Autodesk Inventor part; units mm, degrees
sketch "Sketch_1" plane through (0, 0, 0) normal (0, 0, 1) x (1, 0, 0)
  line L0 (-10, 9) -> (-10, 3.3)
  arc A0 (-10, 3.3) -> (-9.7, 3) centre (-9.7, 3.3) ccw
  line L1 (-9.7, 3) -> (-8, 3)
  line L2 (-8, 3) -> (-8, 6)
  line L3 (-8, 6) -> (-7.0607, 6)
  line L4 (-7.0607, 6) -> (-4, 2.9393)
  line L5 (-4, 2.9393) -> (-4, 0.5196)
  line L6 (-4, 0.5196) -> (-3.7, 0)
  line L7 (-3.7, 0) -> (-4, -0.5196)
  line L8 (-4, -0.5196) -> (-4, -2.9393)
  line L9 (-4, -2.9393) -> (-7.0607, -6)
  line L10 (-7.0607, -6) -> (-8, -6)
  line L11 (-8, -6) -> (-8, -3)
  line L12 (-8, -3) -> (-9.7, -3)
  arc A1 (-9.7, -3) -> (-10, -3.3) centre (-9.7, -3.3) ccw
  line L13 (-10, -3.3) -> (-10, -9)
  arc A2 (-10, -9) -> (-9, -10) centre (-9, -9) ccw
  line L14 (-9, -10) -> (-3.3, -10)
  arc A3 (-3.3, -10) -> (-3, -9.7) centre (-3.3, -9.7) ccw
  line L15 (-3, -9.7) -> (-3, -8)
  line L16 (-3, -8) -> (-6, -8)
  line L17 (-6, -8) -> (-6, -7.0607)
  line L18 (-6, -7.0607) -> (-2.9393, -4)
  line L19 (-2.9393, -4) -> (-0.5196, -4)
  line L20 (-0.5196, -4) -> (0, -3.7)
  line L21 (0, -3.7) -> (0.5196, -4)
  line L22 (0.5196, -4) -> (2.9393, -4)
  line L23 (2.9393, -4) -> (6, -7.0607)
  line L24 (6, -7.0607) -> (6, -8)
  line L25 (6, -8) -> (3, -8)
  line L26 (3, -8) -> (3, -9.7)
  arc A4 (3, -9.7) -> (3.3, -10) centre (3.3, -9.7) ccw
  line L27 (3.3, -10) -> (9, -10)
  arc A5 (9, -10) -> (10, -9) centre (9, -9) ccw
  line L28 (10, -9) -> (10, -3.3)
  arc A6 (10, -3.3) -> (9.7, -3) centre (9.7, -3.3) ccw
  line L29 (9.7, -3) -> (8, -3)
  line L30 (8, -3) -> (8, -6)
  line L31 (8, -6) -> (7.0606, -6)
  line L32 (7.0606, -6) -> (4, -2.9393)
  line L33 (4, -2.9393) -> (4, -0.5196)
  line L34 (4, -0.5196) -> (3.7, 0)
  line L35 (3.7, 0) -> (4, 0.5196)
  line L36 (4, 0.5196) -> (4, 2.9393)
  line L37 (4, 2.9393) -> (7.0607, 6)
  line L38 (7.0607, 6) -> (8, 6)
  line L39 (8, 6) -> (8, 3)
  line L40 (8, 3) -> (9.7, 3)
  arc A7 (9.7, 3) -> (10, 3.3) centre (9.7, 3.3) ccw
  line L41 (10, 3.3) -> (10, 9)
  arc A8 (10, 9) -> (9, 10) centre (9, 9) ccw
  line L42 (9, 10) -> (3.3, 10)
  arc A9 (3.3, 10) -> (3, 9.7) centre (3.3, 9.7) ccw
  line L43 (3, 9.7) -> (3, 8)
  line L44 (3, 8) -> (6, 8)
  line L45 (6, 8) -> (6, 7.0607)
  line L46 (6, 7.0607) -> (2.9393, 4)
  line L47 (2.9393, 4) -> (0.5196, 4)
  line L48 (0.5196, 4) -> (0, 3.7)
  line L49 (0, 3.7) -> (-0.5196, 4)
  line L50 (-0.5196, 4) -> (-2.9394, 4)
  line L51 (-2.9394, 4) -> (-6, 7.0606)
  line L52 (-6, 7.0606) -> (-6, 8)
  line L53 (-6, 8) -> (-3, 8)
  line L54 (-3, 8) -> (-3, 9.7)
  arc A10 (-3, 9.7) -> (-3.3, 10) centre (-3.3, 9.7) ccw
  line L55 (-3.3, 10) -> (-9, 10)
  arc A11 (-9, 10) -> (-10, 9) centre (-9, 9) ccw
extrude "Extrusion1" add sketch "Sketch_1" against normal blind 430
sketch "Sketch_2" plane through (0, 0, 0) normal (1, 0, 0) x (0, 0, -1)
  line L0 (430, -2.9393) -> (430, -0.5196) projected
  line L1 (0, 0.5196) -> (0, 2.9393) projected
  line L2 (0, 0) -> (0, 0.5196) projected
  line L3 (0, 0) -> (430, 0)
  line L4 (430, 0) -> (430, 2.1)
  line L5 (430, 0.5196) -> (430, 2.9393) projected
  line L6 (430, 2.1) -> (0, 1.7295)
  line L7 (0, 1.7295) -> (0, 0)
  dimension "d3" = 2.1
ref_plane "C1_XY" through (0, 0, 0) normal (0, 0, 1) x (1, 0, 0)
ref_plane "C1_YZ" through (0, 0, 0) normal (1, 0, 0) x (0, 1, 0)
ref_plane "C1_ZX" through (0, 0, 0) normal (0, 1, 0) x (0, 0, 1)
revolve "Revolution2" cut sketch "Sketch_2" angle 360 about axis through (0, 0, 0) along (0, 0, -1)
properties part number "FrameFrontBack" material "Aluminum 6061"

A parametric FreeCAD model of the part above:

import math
import FreeCAD as App
import Part
import Sketcher
from FreeCAD import Vector
Q = App.Units.Quantity


def add_polygon(sketch, points):
    """Adds a closed chain of lines whose ends are joined by coincident constraints."""
    first, n = sketch.GeometryCount, len(points)
    for a, b in zip(points, points[1:] + points[:1]):
        sketch.addGeometry(Part.LineSegment(App.Vector(*a, 0), App.Vector(*b, 0)), False)
    for i in range(n):
        sketch.addConstraint(Sketcher.Constraint("Coincident", first + i, 2, first + (i + 1) % n, 1))

doc = App.newDocument("Part")
body = doc.addObject("PartDesign::Body", "Body")

# Sketch on XY plane
sketch1 = body.newObject("Sketcher::SketchObject", "Sketch")
sketch1.AttachmentSupport = (doc.getObject("XY_Plane"), [""])
sketch1.MapMode = "FlatFace"
sketch1.addGeometry(Part.ArcOfCircle(Part.Circle(Vector(-9, 9, 0), Vector(0, 0, 1), 1), math.radians(90), math.radians(180)), False)
sketch1.addGeometry(Part.LineSegment(Vector(-10, 9, 0), Vector(-10, 3.3, 0)), False)
sketch1.addGeometry(Part.ArcOfCircle(Part.Circle(Vector(-9.7, 3.3, 0), Vector(0, 0, 1), 0.3), math.radians(180), math.radians(270)), False)
sketch1.addGeometry(Part.LineSegment(Vector(-9.7, 3, 0), Vector(-8, 3, 0)), False)
sketch1.addGeometry(Part.LineSegment(Vector(-8, 3, 0), Vector(-8, 6, 0)), False)
sketch1.addGeometry(Part.LineSegment(Vector(-8, 6, 0), Vector(-7.06, 6, 0)), False)
sketch1.addGeometry(Part.LineSegment(Vector(-7.06, 6, 0), Vector(-4, 2.94, 0)), False)
sketch1.addGeometry(Part.LineSegment(Vector(-4, 2.94, 0), Vector(-4, 0.52, 0)), False)
sketch1.addGeometry(Part.LineSegment(Vector(-4, 0.52, 0), Vector(-3.7, 0, 0)), False)
sketch1.addGeometry(Part.LineSegment(Vector(-3.7, 0, 0), Vector(-4, -0.52, 0)), False)
sketch1.addGeometry(Part.LineSegment(Vector(-4, -0.52, 0), Vector(-4, -2.94, 0)), False)
sketch1.addGeometry(Part.LineSegment(Vector(-4, -2.94, 0), Vector(-7.06, -6, 0)), False)
sketch1.addGeometry(Part.LineSegment(Vector(-7.06, -6, 0), Vector(-8, -6, 0)), False)
sketch1.addGeometry(Part.LineSegment(Vector(-8, -6, 0), Vector(-8, -3, 0)), False)
sketch1.addGeometry(Part.LineSegment(Vector(-8, -3, 0), Vector(-9.7, -3, 0)), False)
sketch1.addGeometry(Part.ArcOfCircle(Part.Circle(Vector(-9.7, -3.3, 0), Vector(0, 0, 1), 0.3), math.radians(90), math.radians(180)), False)
sketch1.addGeometry(Part.LineSegment(Vector(-10, -3.3, 0), Vector(-10, -9, 0)), False)
sketch1.addGeometry(Part.ArcOfCircle(Part.Circle(Vector(-9, -9, 0), Vector(0, 0, 1), 1), math.radians(180), math.radians(270)), False)
sketch1.addGeometry(Part.LineSegment(Vector(-9, -10, 0), Vector(-3.3, -10, 0)), False)
sketch1.addGeometry(Part.ArcOfCircle(Part.Circle(Vector(-3.3, -9.7, 0), Vector(0, 0, 1), 0.3), math.radians(-90), math.radians(0)), False)
sketch1.addGeometry(Part.LineSegment(Vector(-3, -9.7, 0), Vector(-3, -8, 0)), False)
sketch1.addGeometry(Part.LineSegment(Vector(-3, -8, 0), Vector(-6, -8, 0)), False)
sketch1.addGeometry(Part.LineSegment(Vector(-6, -8, 0), Vector(-6, -7.06, 0)), False)
sketch1.addGeometry(Part.LineSegment(Vector(-6, -7.06, 0), Vector(-2.94, -4, 0)), False)
sketch1.addGeometry(Part.LineSegment(Vector(-2.94, -4, 0), Vector(-0.52, -4, 0)), False)
sketch1.addGeometry(Part.LineSegment(Vector(-0.52, -4, 0), Vector(0, -3.7, 0)), False)
sketch1.addGeometry(Part.LineSegment(Vector(0, -3.7, 0), Vector(0.52, -4, 0)), False)
sketch1.addGeometry(Part.LineSegment(Vector(0.52, -4, 0), Vector(2.94, -4, 0)), False)
sketch1.addGeometry(Part.LineSegment(Vector(2.94, -4, 0), Vector(6, -7.06, 0)), False)
sketch1.addGeometry(Part.LineSegment(Vector(6, -7.06, 0), Vector(6, -8, 0)), False)
sketch1.addGeometry(Part.LineSegment(Vector(6, -8, 0), Vector(3, -8, 0)), False)
sketch1.addGeometry(Part.LineSegment(Vector(3, -8, 0), Vector(3, -9.7, 0)), False)
sketch1.addGeometry(Part.ArcOfCircle(Part.Circle(Vector(3.3, -9.7, 0), Vector(0, 0, 1), 0.3), math.radians(180), math.radians(270)), False)
sketch1.addGeometry(Part.LineSegment(Vector(3.3, -10, 0), Vector(9, -10, 0)), False)
sketch1.addGeometry(Part.ArcOfCircle(Part.Circle(Vector(9, -9, 0), Vector(0, 0, 1), 1), math.radians(-90), math.radians(0)), False)
sketch1.addGeometry(Part.LineSegment(Vector(10, -9, 0), Vector(10, -3.3, 0)), False)
sketch1.addGeometry(Part.ArcOfCircle(Part.Circle(Vector(9.7, -3.3, 0), Vector(0, 0, 1), 0.3), math.radians(0), math.radians(90)), False)
sketch1.addGeometry(Part.LineSegment(Vector(9.7, -3, 0), Vector(8, -3, 0)), False)
sketch1.addGeometry(Part.LineSegment(Vector(8, -3, 0), Vector(8, -6, 0)), False)
sketch1.addGeometry(Part.LineSegment(Vector(8, -6, 0), Vector(7.06, -6, 0)), False)
sketch1.addGeometry(Part.LineSegment(Vector(7.06, -6, 0), Vector(4, -2.94, 0)), False)
sketch1.addGeometry(Part.LineSegment(Vector(4, -2.94, 0), Vector(4, -0.52, 0)), False)
sketch1.addGeometry(Part.LineSegment(Vector(4, -0.52, 0), Vector(3.7, 0, 0)), False)
sketch1.addGeometry(Part.LineSegment(Vector(3.7, 0, 0), Vector(4, 0.52, 0)), False)
sketch1.addGeometry(Part.LineSegment(Vector(4, 0.52, 0), Vector(4, 2.94, 0)), False)
sketch1.addGeometry(Part.LineSegment(Vector(4, 2.94, 0), Vector(7.06, 6, 0)), False)
sketch1.addGeometry(Part.LineSegment(Vector(7.06, 6, 0), Vector(8, 6, 0)), False)
sketch1.addGeometry(Part.LineSegment(Vector(8, 6, 0), Vector(8, 3, 0)), False)
sketch1.addGeometry(Part.LineSegment(Vector(8, 3, 0), Vector(9.7, 3, 0)), False)
sketch1.addGeometry(Part.ArcOfCircle(Part.Circle(Vector(9.7, 3.3, 0), Vector(0, 0, 1), 0.3), math.radians(-90), math.radians(0)), False)
sketch1.addGeometry(Part.LineSegment(Vector(10, 3.3, 0), Vector(10, 9, 0)), False)
sketch1.addGeometry(Part.ArcOfCircle(Part.Circle(Vector(9, 9, 0), Vector(0, 0, 1), 1), math.radians(0), math.radians(90)), False)
sketch1.addGeometry(Part.LineSegment(Vector(9, 10, 0), Vector(3.3, 10, 0)), False)
sketch1.addGeometry(Part.ArcOfCircle(Part.Circle(Vector(3.3, 9.7, 0), Vector(0, 0, 1), 0.3), math.radians(90), math.radians(180)), False)
sketch1.addGeometry(Part.LineSegment(Vector(3, 9.7, 0), Vector(3, 8, 0)), False)
sketch1.addGeometry(Part.LineSegment(Vector(3, 8, 0), Vector(6, 8, 0)), False)
sketch1.addGeometry(Part.LineSegment(Vector(6, 8, 0), Vector(6, 7.06, 0)), False)
sketch1.addGeometry(Part.LineSegment(Vector(6, 7.06, 0), Vector(2.94, 4, 0)), False)
sketch1.addGeometry(Part.LineSegment(Vector(2.94, 4, 0), Vector(0.52, 4, 0)), False)
sketch1.addGeometry(Part.LineSegment(Vector(0.52, 4, 0), Vector(0, 3.7, 0)), False)
sketch1.addGeometry(Part.LineSegment(Vector(0, 3.7, 0), Vector(-0.52, 4, 0)), False)
sketch1.addGeometry(Part.LineSegment(Vector(-0.52, 4, 0), Vector(-2.94, 4, 0)), False)
sketch1.addGeometry(Part.LineSegment(Vector(-2.94, 4, 0), Vector(-6, 7.06, 0)), False)
sketch1.addGeometry(Part.LineSegment(Vector(-6, 7.06, 0), Vector(-6, 8, 0)), False)
sketch1.addGeometry(Part.LineSegment(Vector(-6, 8, 0), Vector(-3, 8, 0)), False)
sketch1.addGeometry(Part.LineSegment(Vector(-3, 8, 0), Vector(-3, 9.7, 0)), False)
sketch1.addGeometry(Part.ArcOfCircle(Part.Circle(Vector(-3.3, 9.7, 0), Vector(0, 0, 1), 0.3), math.radians(0), math.radians(90)), False)
sketch1.addGeometry(Part.LineSegment(Vector(-3.3, 10, 0), Vector(-9, 10, 0)), False)
sketch1.addConstraint(Sketcher.Constraint("Tangent", 0, 2, 1, 1))
sketch1.addConstraint(Sketcher.Constraint("Tangent", 1, 2, 2, 1))
sketch1.addConstraint(Sketcher.Constraint("Tangent", 2, 2, 3, 1))
sketch1.addConstraint(Sketcher.Constraint("Coincident", 3, 2, 4, 1))
sketch1.addConstraint(Sketcher.Constraint("Coincident", 4, 2, 5, 1))
sketch1.addConstraint(Sketcher.Constraint("Coincident", 5, 2, 6, 1))
sketch1.addConstraint(Sketcher.Constraint("Coincident", 6, 2, 7, 1))
sketch1.addConstraint(Sketcher.Constraint("Coincident", 7, 2, 8, 1))
sketch1.addConstraint(Sketcher.Constraint("Coincident", 8, 2, 9, 1))
sketch1.addConstraint(Sketcher.Constraint("Coincident", 9, 2, 10, 1))
sketch1.addConstraint(Sketcher.Constraint("Coincident", 10, 2, 11, 1))
sketch1.addConstraint(Sketcher.Constraint("Coincident", 11, 2, 12, 1))
sketch1.addConstraint(Sketcher.Constraint("Coincident", 12, 2, 13, 1))
sketch1.addConstraint(Sketcher.Constraint("Coincident", 13, 2, 14, 1))
sketch1.addConstraint(Sketcher.Constraint("Tangent", 14, 2, 15, 1))
sketch1.addConstraint(Sketcher.Constraint("Tangent", 15, 2, 16, 1))
sketch1.addConstraint(Sketcher.Constraint("Tangent", 16, 2, 17, 1))
sketch1.addConstraint(Sketcher.Constraint("Tangent", 17, 2, 18, 1))
sketch1.addConstraint(Sketcher.Constraint("Tangent", 18, 2, 19, 1))
sketch1.addConstraint(Sketcher.Constraint("Tangent", 19, 2, 20, 1))
sketch1.addConstraint(Sketcher.Constraint("Coincident", 20, 2, 21, 1))
sketch1.addConstraint(Sketcher.Constraint("Coincident", 21, 2, 22, 1))
sketch1.addConstraint(Sketcher.Constraint("Coincident", 22, 2, 23, 1))
sketch1.addConstraint(Sketcher.Constraint("Coincident", 23, 2, 24, 1))
sketch1.addConstraint(Sketcher.Constraint("Coincident", 24, 2, 25, 1))
sketch1.addConstraint(Sketcher.Constraint("Coincident", 25, 2, 26, 1))
sketch1.addConstraint(Sketcher.Constraint("Coincident", 26, 2, 27, 1))
sketch1.addConstraint(Sketcher.Constraint("Coincident", 27, 2, 28, 1))
sketch1.addConstraint(Sketcher.Constraint("Coincident", 28, 2, 29, 1))
sketch1.addConstraint(Sketcher.Constraint("Coincident", 29, 2, 30, 1))
sketch1.addConstraint(Sketcher.Constraint("Coincident", 30, 2, 31, 1))
sketch1.addConstraint(Sketcher.Constraint("Tangent", 31, 2, 32, 1))
sketch1.addConstraint(Sketcher.Constraint("Tangent", 32, 2, 33, 1))
sketch1.addConstraint(Sketcher.Constraint("Tangent", 33, 2, 34, 1))
sketch1.addConstraint(Sketcher.Constraint("Tangent", 34, 2, 35, 1))
sketch1.addConstraint(Sketcher.Constraint("Tangent", 35, 2, 36, 1))
sketch1.addConstraint(Sketcher.Constraint("Tangent", 36, 2, 37, 1))
sketch1.addConstraint(Sketcher.Constraint("Coincident", 37, 2, 38, 1))
sketch1.addConstraint(Sketcher.Constraint("Coincident", 38, 2, 39, 1))
sketch1.addConstraint(Sketcher.Constraint("Coincident", 39, 2, 40, 1))
sketch1.addConstraint(Sketcher.Constraint("Coincident", 40, 2, 41, 1))
sketch1.addConstraint(Sketcher.Constraint("Coincident", 41, 2, 42, 1))
sketch1.addConstraint(Sketcher.Constraint("Coincident", 42, 2, 43, 1))
sketch1.addConstraint(Sketcher.Constraint("Coincident", 43, 2, 44, 1))
sketch1.addConstraint(Sketcher.Constraint("Coincident", 44, 2, 45, 1))
sketch1.addConstraint(Sketcher.Constraint("Coincident", 45, 2, 46, 1))
sketch1.addConstraint(Sketcher.Constraint("Coincident", 46, 2, 47, 1))
sketch1.addConstraint(Sketcher.Constraint("Coincident", 47, 2, 48, 1))
sketch1.addConstraint(Sketcher.Constraint("Tangent", 48, 2, 49, 1))
sketch1.addConstraint(Sketcher.Constraint("Tangent", 49, 2, 50, 1))
sketch1.addConstraint(Sketcher.Constraint("Tangent", 50, 2, 51, 1))
sketch1.addConstraint(Sketcher.Constraint("Tangent", 51, 2, 52, 1))
sketch1.addConstraint(Sketcher.Constraint("Tangent", 52, 2, 53, 1))
sketch1.addConstraint(Sketcher.Constraint("Tangent", 53, 2, 54, 1))
sketch1.addConstraint(Sketcher.Constraint("Coincident", 54, 2, 55, 1))
sketch1.addConstraint(Sketcher.Constraint("Coincident", 55, 2, 56, 1))
sketch1.addConstraint(Sketcher.Constraint("Coincident", 56, 2, 57, 1))
sketch1.addConstraint(Sketcher.Constraint("Coincident", 57, 2, 58, 1))
sketch1.addConstraint(Sketcher.Constraint("Coincident", 58, 2, 59, 1))
sketch1.addConstraint(Sketcher.Constraint("Coincident", 59, 2, 60, 1))
sketch1.addConstraint(Sketcher.Constraint("Coincident", 60, 2, 61, 1))
sketch1.addConstraint(Sketcher.Constraint("Coincident", 61, 2, 62, 1))
sketch1.addConstraint(Sketcher.Constraint("Coincident", 62, 2, 63, 1))
sketch1.addConstraint(Sketcher.Constraint("Coincident", 63, 2, 64, 1))
sketch1.addConstraint(Sketcher.Constraint("Coincident", 64, 2, 65, 1))
sketch1.addConstraint(Sketcher.Constraint("Tangent", 65, 2, 66, 1))
sketch1.addConstraint(Sketcher.Constraint("Tangent", 66, 2, 67, 1))
sketch1.addConstraint(Sketcher.Constraint("Tangent", 67, 2, 0, 1))
sketch1.addConstraint(Sketcher.Constraint("Vertical", 1))
sketch1.addConstraint(Sketcher.Constraint("Horizontal", 3))
sketch1.addConstraint(Sketcher.Constraint("Vertical", 4))
sketch1.addConstraint(Sketcher.Constraint("Horizontal", 5))
sketch1.addConstraint(Sketcher.Constraint("Vertical", 7))
sketch1.addConstraint(Sketcher.Constraint("Vertical", 10))
sketch1.addConstraint(Sketcher.Constraint("Horizontal", 12))
sketch1.addConstraint(Sketcher.Constraint("Vertical", 13))
sketch1.addConstraint(Sketcher.Constraint("Horizontal", 14))
sketch1.addConstraint(Sketcher.Constraint("Vertical", 16))
sketch1.addConstraint(Sketcher.Constraint("Horizontal", 18))
sketch1.addConstraint(Sketcher.Constraint("Vertical", 20))
sketch1.addConstraint(Sketcher.Constraint("Horizontal", 21))
sketch1.addConstraint(Sketcher.Constraint("Vertical", 22))
sketch1.addConstraint(Sketcher.Constraint("Horizontal", 24))
sketch1.addConstraint(Sketcher.Constraint("Horizontal", 27))
sketch1.addConstraint(Sketcher.Constraint("Vertical", 29))
sketch1.addConstraint(Sketcher.Constraint("Horizontal", 30))
sketch1.addConstraint(Sketcher.Constraint("Vertical", 31))
sketch1.addConstraint(Sketcher.Constraint("Horizontal", 33))
sketch1.addConstraint(Sketcher.Constraint("Vertical", 35))
sketch1.addConstraint(Sketcher.Constraint("Horizontal", 37))
sketch1.addConstraint(Sketcher.Constraint("Vertical", 38))
sketch1.addConstraint(Sketcher.Constraint("Horizontal", 39))
sketch1.addConstraint(Sketcher.Constraint("Vertical", 41))
sketch1.addConstraint(Sketcher.Constraint("Vertical", 44))
sketch1.addConstraint(Sketcher.Constraint("Horizontal", 46))
sketch1.addConstraint(Sketcher.Constraint("Vertical", 47))
sketch1.addConstraint(Sketcher.Constraint("Horizontal", 48))
sketch1.addConstraint(Sketcher.Constraint("Vertical", 50))
sketch1.addConstraint(Sketcher.Constraint("Horizontal", 52))
sketch1.addConstraint(Sketcher.Constraint("Vertical", 54))
sketch1.addConstraint(Sketcher.Constraint("Horizontal", 55))
sketch1.addConstraint(Sketcher.Constraint("Vertical", 56))
sketch1.addConstraint(Sketcher.Constraint("Horizontal", 58))
sketch1.addConstraint(Sketcher.Constraint("Horizontal", 61))
sketch1.addConstraint(Sketcher.Constraint("Vertical", 63))
sketch1.addConstraint(Sketcher.Constraint("Horizontal", 64))
sketch1.addConstraint(Sketcher.Constraint("Vertical", 65))
sketch1.addConstraint(Sketcher.Constraint("Horizontal", 67))
sketch1.addConstraint(Sketcher.Constraint("Equal", 2, 15))
sketch1.addConstraint(Sketcher.Constraint("Equal", 0, 17))
sketch1.addConstraint(Sketcher.Constraint("Equal", 15, 19))
sketch1.addConstraint(Sketcher.Constraint("Equal", 19, 32))
sketch1.addConstraint(Sketcher.Constraint("Equal", 17, 34))
sketch1.addConstraint(Sketcher.Constraint("Equal", 32, 36))
sketch1.addConstraint(Sketcher.Constraint("Equal", 36, 49))
sketch1.addConstraint(Sketcher.Constraint("Equal", 34, 51))
sketch1.addConstraint(Sketcher.Constraint("Equal", 49, 53))
sketch1.addConstraint(Sketcher.Constraint("Equal", 53, 66))
sketch1.addConstraint(Sketcher.Constraint("Symmetric", 0, 3, 34, 3, -1, 1))
sketch1.addConstraint(Sketcher.Constraint("Symmetric", 15, 3, 49, 3, -1, 1))
sketch1.addConstraint(Sketcher.Constraint("Symmetric", 19, 3, 53, 3, -1, 1))
sketch1.addConstraint(Sketcher.Constraint("Symmetric", 3, 2, 37, 2, -1, 1))
sketch1.addConstraint(Sketcher.Constraint("Symmetric", 5, 2, 39, 2, -1, 1))
sketch1.addConstraint(Sketcher.Constraint("Symmetric", 6, 2, 40, 2, -1, 1))
sketch1.addConstraint(Sketcher.Constraint("Symmetric", 8, 2, 42, 2, -1, 1))
sketch1.addConstraint(Sketcher.Constraint("Symmetric", 9, 2, 43, 2, -1, 1))
sketch1.addConstraint(Sketcher.Constraint("Symmetric", 11, 2, 45, 2, -1, 1))
sketch1.addConstraint(Sketcher.Constraint("Symmetric", 21, 2, 55, 2, -1, 1))
sketch1.addConstraint(Sketcher.Constraint("Symmetric", 23, 2, 57, 2, -1, 1))
sketch1.addConstraint(Sketcher.Constraint("Symmetric", 25, 2, 59, 2, -1, 1))
sketch1.addConstraint(Sketcher.Constraint("Symmetric", 26, 2, 60, 2, -1, 1))
sketch1.addConstraint(Sketcher.Constraint("Symmetric", 28, 2, 62, 2, -1, 1))
sketch1.addConstraint(Sketcher.Constraint("Symmetric", 30, 2, 64, 2, -1, 1))
sketch1.addConstraint(Sketcher.Constraint("Symmetric", 19, 3, 32, 3, -2))
sketch1.addConstraint(Sketcher.Constraint("Symmetric", 15, 3, 36, 3, -2))
sketch1.addConstraint(Sketcher.Constraint("Symmetric", 24, 2, 26, 2, -2))
sketch1.addConstraint(Sketcher.Constraint("Symmetric", 22, 2, 28, 2, -2))
sketch1.addConstraint(Sketcher.Constraint("Symmetric", 12, 2, 38, 2, -2))
sketch1.addConstraint(Sketcher.Constraint("Symmetric", 10, 2, 40, 2, -2))
sketch1.addConstraint(Sketcher.Constraint("PointOnObject", 8, 2, -1))
sketch1.addConstraint(Sketcher.Constraint("PointOnObject", 25, 2, -2))
sketch1.addConstraint(Sketcher.Constraint("Perpendicular", 6, 11))
sketch1.addConstraint(Sketcher.Constraint("Parallel", 11, 23))
sketch1.addConstraint(Sketcher.Constraint("Perpendicular", 8, 25))
sketch1.addConstraint(Sketcher.Constraint("Perpendicular", 9, 26))
sketch1.addConstraint(Sketcher.Constraint("Perpendicular", 23, 28))
sketch1.addConstraint(Sketcher.Constraint("Perpendicular", 25, 42))
sketch1.addConstraint(Sketcher.Constraint("Perpendicular", 40, 45))
sketch1.addConstraint(Sketcher.Constraint("Parallel", 45, 57))
sketch1.addConstraint(Sketcher.Constraint("Perpendicular", 42, 59))
sketch1.addConstraint(Sketcher.Constraint("Perpendicular", 57, 62))
sketch1.addConstraint(Sketcher.Constraint("Horizontal", 21, 2, 29, 2))
sketch1.addConstraint(Sketcher.Constraint("Vertical", 5, 2, 11, 2))
sketch1.addConstraint(Sketcher.Constraint("Vertical", 38, 2, 46, 2))
sketch1.addConstraint(Sketcher.Constraint("Equal", 67, 1))
sketch1.addConstraint(Sketcher.Constraint("Equal", 64, 4))
sketch1.addConstraint(Sketcher.Constraint("Equal", 61, 7))
sketch1.addConstraint(Sketcher.Constraint("Equal", 48, 20))
sketch1.addConstraint(Sketcher.Constraint("Equal", 46, 22))
sketch1.addConstraint(Sketcher.Constraint("Equal", 11, 23))
sketch1.addConstraint(Sketcher.Constraint("Equal", 9, 25))
sketch1.addConstraint(Sketcher.Constraint("Radius", 0, 1.0))
sketch1.addConstraint(Sketcher.Constraint("Radius", 2, 0.3))
sketch1.addConstraint(Sketcher.Constraint("DistanceX", 21, 2, 21, 1, 3.0))
sketch1.addConstraint(Sketcher.Constraint("Angle", 8, Q("-59.9993 deg")))
sketch1.addConstraint(Sketcher.Constraint("DistanceX", 3, 1, 3, 2, 1.7))
sketch1.addConstraint(Sketcher.Constraint("DistanceX", 18, 1, 18, 2, 5.7))
sketch1.addConstraint(Sketcher.Constraint("DistanceX", 0, 3, -1, 1, 9.0))
sketch1.addConstraint(Sketcher.Constraint("DistanceX", 6, 2, -1, 1, 4.0))
sketch1.addConstraint(Sketcher.Constraint("Distance", 8, 0.6))
sketch1.addConstraint(Sketcher.Constraint("DistanceX", 5, 1, 5, 2, 0.9393))
pad1 = body.newObject("PartDesign::Pad", "Pad")
pad1.Profile = sketch1
pad1.Length = 430
pad1.Reversed = True

# Sketch on YZ plane
sketch2 = body.newObject("Sketcher::SketchObject", "Sketch001")
sketch2.AttachmentSupport = (doc.getObject("YZ_Plane"), [""])
sketch2.MapMode = "FlatFace"
add_polygon(sketch2, [(1.7, 0), (0, 0), (0, -430), (2.1, -430)])  # lines 0-3
sketch2.addConstraint(Sketcher.Constraint("Horizontal", 0))
sketch2.addConstraint(Sketcher.Constraint("Vertical", 1))
sketch2.addConstraint(Sketcher.Constraint("Horizontal", 2))
sketch2.addConstraint(Sketcher.Constraint("Coincident", 0, 2, -1, 1))
sketch2.addConstraint(Sketcher.Constraint("DistanceX", 2, 1, 2, 2, 2.1))
sketch2.addConstraint(Sketcher.Constraint("DistanceY", 1, 2, 1, 1, 430.0))
sketch2.addConstraint(Sketcher.Constraint("Angle", 3, Q("90.0494 deg")))
groove = body.newObject("PartDesign::Groove", "Groove")
groove.Profile = sketch2
groove.ReferenceAxis = (sketch2, ["V_Axis"])
groove.Angle = 360

doc.recompute()
